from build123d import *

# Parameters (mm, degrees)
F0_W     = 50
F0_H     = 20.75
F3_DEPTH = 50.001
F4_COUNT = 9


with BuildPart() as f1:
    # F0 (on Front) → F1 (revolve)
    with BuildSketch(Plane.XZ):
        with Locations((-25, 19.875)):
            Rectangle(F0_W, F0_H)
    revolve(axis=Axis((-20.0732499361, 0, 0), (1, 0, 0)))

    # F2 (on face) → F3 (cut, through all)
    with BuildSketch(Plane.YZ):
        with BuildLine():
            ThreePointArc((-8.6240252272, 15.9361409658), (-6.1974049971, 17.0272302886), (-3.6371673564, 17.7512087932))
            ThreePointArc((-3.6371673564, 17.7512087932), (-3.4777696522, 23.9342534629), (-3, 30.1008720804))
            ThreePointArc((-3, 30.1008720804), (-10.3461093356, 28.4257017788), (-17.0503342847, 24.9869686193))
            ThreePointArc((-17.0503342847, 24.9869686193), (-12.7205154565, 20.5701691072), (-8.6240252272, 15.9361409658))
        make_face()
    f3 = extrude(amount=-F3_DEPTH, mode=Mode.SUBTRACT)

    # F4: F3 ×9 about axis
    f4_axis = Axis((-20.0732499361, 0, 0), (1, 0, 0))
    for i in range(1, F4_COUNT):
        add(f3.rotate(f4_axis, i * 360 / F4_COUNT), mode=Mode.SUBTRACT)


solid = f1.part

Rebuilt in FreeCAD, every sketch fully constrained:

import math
import FreeCAD as App
import Part
import Sketcher
from FreeCAD import Vector
Q = App.Units.Quantity

doc = App.newDocument("Part")
body = doc.addObject("PartDesign::Body", "Body")

sketch1 = doc.addObject("Sketcher::SketchObject", "Sketch")
body.addObject(sketch1)
sketch1.AttachmentSupport = (doc.XZ_Plane, [""])
sketch1.MapMode = "FlatFace"
sketch1.addGeometry([
    Part.LineSegment(Vector(-50, 30.25, 0), Vector(-50, 9.5, 0)),
    Part.LineSegment(Vector(-50, 9.5, 0), Vector(0, 9.5, 0)),
    Part.LineSegment(Vector(0, 9.5, 0), Vector(0, 30.25, 0)),
    Part.LineSegment(Vector(0, 30.25, 0), Vector(-50, 30.25, 0)),
], False)
sketch1.addConstraint([
    Sketcher.Constraint("Coincident", 0, 2, 1, 1),
    Sketcher.Constraint("Coincident", 1, 2, 2, 1),
    Sketcher.Constraint("Coincident", 2, 2, 3, 1),
    Sketcher.Constraint("Coincident", 3, 2, 0, 1),
    Sketcher.Constraint("Vertical", 0),
    Sketcher.Constraint("Horizontal", 1),
    Sketcher.Constraint("Vertical", 2),
    Sketcher.Constraint("Horizontal", 3),
    Sketcher.Constraint("PointOnObject", 1, 2, -2),
    Sketcher.Constraint("DistanceX", 1, 1, 1, 2, Q("50 mm")),
    Sketcher.Constraint("DistanceY", 0, 2, 0, 1, Q("20.75 mm")),
    Sketcher.Constraint("DistanceY", -1, 1, 0, 2, Q("9.5 mm")),
])
revolution = doc.addObject("PartDesign::Revolution", "Revolution")
body.addObject(revolution)
revolution.Profile = sketch1
revolution.ReferenceAxis = (sketch1, ["H_Axis"])
revolution.Angle = 360

sketch2 = doc.addObject("Sketcher::SketchObject", "Sketch001")
body.addObject(sketch2)
sketch2.AttachmentSupport = (doc.YZ_Plane, [""])
sketch2.MapMode = "FlatFace"
sketch2.addGeometry([
    Part.ArcOfCircle(Part.Circle(Vector(0, 0, 0), Vector(0, 0, 1), 18.12), math.radians(101.579456), math.radians(118.420544)),
    Part.ArcOfCircle(Part.Circle(Vector(116.362833, 17.751209, 0), Vector(0, 0, 1), 120), math.radians(174.093012), math.radians(180)),
    Part.ArcOfCircle(Part.Circle(Vector(0, 0, 0), Vector(0, 0, 1), 30.25), math.radians(95.691582), math.radians(124.308418)),
    Part.ArcOfCircle(Part.Circle(Vector(-100.549358, -61.198372, 0), Vector(0, 0, 1), 120), math.radians(40), math.radians(45.906988)),
], False)
sketch2.addConstraint([
    Sketcher.Constraint("Coincident", 0, 1, 1, 2),
    Sketcher.Constraint("Coincident", 1, 1, 2, 1),
    Sketcher.Constraint("Coincident", 2, 2, 3, 2),
    Sketcher.Constraint("Coincident", 3, 1, 0, 2),
    Sketcher.Constraint("Coincident", 0, 3, -1, 1),
    Sketcher.Constraint("Coincident", 2, 3, -1, 1),
    Sketcher.Constraint("Equal", 1, 3),
    Sketcher.Constraint("Horizontal", 1, 3, 0, 1),
    Sketcher.Constraint("Radius", 1, Q("120 mm")),
    Sketcher.Constraint("Radius", 0, Q("18.12 mm")),
    Sketcher.Constraint("Radius", 2, Q("30.25 mm")),
    Sketcher.Constraint("DistanceX", 1, 1, -1, 1, Q("3 mm")),
    Sketcher.Constraint("DistanceX", 3, 3, -1, 1, Q("100.549358 mm")),
    Sketcher.Constraint("DistanceY", -1, 1, 2, 2, Q("24.986969 mm")),
])
pocket1 = doc.addObject("PartDesign::Pocket", "Pocket")
body.addObject(pocket1)
pocket1.Profile = sketch2
pocket1.Type = "ThroughAll"
doc.recompute()

polarpattern = doc.addObject("PartDesign::PolarPattern", "PolarPattern")
body.addObject(polarpattern)
polarpattern.Originals = [pocket1]
polarpattern.Axis = (doc.X_Axis, [""])
polarpattern.Angle = 360
polarpattern.Occurrences = 9
body.Tip = polarpattern

doc.recompute()
